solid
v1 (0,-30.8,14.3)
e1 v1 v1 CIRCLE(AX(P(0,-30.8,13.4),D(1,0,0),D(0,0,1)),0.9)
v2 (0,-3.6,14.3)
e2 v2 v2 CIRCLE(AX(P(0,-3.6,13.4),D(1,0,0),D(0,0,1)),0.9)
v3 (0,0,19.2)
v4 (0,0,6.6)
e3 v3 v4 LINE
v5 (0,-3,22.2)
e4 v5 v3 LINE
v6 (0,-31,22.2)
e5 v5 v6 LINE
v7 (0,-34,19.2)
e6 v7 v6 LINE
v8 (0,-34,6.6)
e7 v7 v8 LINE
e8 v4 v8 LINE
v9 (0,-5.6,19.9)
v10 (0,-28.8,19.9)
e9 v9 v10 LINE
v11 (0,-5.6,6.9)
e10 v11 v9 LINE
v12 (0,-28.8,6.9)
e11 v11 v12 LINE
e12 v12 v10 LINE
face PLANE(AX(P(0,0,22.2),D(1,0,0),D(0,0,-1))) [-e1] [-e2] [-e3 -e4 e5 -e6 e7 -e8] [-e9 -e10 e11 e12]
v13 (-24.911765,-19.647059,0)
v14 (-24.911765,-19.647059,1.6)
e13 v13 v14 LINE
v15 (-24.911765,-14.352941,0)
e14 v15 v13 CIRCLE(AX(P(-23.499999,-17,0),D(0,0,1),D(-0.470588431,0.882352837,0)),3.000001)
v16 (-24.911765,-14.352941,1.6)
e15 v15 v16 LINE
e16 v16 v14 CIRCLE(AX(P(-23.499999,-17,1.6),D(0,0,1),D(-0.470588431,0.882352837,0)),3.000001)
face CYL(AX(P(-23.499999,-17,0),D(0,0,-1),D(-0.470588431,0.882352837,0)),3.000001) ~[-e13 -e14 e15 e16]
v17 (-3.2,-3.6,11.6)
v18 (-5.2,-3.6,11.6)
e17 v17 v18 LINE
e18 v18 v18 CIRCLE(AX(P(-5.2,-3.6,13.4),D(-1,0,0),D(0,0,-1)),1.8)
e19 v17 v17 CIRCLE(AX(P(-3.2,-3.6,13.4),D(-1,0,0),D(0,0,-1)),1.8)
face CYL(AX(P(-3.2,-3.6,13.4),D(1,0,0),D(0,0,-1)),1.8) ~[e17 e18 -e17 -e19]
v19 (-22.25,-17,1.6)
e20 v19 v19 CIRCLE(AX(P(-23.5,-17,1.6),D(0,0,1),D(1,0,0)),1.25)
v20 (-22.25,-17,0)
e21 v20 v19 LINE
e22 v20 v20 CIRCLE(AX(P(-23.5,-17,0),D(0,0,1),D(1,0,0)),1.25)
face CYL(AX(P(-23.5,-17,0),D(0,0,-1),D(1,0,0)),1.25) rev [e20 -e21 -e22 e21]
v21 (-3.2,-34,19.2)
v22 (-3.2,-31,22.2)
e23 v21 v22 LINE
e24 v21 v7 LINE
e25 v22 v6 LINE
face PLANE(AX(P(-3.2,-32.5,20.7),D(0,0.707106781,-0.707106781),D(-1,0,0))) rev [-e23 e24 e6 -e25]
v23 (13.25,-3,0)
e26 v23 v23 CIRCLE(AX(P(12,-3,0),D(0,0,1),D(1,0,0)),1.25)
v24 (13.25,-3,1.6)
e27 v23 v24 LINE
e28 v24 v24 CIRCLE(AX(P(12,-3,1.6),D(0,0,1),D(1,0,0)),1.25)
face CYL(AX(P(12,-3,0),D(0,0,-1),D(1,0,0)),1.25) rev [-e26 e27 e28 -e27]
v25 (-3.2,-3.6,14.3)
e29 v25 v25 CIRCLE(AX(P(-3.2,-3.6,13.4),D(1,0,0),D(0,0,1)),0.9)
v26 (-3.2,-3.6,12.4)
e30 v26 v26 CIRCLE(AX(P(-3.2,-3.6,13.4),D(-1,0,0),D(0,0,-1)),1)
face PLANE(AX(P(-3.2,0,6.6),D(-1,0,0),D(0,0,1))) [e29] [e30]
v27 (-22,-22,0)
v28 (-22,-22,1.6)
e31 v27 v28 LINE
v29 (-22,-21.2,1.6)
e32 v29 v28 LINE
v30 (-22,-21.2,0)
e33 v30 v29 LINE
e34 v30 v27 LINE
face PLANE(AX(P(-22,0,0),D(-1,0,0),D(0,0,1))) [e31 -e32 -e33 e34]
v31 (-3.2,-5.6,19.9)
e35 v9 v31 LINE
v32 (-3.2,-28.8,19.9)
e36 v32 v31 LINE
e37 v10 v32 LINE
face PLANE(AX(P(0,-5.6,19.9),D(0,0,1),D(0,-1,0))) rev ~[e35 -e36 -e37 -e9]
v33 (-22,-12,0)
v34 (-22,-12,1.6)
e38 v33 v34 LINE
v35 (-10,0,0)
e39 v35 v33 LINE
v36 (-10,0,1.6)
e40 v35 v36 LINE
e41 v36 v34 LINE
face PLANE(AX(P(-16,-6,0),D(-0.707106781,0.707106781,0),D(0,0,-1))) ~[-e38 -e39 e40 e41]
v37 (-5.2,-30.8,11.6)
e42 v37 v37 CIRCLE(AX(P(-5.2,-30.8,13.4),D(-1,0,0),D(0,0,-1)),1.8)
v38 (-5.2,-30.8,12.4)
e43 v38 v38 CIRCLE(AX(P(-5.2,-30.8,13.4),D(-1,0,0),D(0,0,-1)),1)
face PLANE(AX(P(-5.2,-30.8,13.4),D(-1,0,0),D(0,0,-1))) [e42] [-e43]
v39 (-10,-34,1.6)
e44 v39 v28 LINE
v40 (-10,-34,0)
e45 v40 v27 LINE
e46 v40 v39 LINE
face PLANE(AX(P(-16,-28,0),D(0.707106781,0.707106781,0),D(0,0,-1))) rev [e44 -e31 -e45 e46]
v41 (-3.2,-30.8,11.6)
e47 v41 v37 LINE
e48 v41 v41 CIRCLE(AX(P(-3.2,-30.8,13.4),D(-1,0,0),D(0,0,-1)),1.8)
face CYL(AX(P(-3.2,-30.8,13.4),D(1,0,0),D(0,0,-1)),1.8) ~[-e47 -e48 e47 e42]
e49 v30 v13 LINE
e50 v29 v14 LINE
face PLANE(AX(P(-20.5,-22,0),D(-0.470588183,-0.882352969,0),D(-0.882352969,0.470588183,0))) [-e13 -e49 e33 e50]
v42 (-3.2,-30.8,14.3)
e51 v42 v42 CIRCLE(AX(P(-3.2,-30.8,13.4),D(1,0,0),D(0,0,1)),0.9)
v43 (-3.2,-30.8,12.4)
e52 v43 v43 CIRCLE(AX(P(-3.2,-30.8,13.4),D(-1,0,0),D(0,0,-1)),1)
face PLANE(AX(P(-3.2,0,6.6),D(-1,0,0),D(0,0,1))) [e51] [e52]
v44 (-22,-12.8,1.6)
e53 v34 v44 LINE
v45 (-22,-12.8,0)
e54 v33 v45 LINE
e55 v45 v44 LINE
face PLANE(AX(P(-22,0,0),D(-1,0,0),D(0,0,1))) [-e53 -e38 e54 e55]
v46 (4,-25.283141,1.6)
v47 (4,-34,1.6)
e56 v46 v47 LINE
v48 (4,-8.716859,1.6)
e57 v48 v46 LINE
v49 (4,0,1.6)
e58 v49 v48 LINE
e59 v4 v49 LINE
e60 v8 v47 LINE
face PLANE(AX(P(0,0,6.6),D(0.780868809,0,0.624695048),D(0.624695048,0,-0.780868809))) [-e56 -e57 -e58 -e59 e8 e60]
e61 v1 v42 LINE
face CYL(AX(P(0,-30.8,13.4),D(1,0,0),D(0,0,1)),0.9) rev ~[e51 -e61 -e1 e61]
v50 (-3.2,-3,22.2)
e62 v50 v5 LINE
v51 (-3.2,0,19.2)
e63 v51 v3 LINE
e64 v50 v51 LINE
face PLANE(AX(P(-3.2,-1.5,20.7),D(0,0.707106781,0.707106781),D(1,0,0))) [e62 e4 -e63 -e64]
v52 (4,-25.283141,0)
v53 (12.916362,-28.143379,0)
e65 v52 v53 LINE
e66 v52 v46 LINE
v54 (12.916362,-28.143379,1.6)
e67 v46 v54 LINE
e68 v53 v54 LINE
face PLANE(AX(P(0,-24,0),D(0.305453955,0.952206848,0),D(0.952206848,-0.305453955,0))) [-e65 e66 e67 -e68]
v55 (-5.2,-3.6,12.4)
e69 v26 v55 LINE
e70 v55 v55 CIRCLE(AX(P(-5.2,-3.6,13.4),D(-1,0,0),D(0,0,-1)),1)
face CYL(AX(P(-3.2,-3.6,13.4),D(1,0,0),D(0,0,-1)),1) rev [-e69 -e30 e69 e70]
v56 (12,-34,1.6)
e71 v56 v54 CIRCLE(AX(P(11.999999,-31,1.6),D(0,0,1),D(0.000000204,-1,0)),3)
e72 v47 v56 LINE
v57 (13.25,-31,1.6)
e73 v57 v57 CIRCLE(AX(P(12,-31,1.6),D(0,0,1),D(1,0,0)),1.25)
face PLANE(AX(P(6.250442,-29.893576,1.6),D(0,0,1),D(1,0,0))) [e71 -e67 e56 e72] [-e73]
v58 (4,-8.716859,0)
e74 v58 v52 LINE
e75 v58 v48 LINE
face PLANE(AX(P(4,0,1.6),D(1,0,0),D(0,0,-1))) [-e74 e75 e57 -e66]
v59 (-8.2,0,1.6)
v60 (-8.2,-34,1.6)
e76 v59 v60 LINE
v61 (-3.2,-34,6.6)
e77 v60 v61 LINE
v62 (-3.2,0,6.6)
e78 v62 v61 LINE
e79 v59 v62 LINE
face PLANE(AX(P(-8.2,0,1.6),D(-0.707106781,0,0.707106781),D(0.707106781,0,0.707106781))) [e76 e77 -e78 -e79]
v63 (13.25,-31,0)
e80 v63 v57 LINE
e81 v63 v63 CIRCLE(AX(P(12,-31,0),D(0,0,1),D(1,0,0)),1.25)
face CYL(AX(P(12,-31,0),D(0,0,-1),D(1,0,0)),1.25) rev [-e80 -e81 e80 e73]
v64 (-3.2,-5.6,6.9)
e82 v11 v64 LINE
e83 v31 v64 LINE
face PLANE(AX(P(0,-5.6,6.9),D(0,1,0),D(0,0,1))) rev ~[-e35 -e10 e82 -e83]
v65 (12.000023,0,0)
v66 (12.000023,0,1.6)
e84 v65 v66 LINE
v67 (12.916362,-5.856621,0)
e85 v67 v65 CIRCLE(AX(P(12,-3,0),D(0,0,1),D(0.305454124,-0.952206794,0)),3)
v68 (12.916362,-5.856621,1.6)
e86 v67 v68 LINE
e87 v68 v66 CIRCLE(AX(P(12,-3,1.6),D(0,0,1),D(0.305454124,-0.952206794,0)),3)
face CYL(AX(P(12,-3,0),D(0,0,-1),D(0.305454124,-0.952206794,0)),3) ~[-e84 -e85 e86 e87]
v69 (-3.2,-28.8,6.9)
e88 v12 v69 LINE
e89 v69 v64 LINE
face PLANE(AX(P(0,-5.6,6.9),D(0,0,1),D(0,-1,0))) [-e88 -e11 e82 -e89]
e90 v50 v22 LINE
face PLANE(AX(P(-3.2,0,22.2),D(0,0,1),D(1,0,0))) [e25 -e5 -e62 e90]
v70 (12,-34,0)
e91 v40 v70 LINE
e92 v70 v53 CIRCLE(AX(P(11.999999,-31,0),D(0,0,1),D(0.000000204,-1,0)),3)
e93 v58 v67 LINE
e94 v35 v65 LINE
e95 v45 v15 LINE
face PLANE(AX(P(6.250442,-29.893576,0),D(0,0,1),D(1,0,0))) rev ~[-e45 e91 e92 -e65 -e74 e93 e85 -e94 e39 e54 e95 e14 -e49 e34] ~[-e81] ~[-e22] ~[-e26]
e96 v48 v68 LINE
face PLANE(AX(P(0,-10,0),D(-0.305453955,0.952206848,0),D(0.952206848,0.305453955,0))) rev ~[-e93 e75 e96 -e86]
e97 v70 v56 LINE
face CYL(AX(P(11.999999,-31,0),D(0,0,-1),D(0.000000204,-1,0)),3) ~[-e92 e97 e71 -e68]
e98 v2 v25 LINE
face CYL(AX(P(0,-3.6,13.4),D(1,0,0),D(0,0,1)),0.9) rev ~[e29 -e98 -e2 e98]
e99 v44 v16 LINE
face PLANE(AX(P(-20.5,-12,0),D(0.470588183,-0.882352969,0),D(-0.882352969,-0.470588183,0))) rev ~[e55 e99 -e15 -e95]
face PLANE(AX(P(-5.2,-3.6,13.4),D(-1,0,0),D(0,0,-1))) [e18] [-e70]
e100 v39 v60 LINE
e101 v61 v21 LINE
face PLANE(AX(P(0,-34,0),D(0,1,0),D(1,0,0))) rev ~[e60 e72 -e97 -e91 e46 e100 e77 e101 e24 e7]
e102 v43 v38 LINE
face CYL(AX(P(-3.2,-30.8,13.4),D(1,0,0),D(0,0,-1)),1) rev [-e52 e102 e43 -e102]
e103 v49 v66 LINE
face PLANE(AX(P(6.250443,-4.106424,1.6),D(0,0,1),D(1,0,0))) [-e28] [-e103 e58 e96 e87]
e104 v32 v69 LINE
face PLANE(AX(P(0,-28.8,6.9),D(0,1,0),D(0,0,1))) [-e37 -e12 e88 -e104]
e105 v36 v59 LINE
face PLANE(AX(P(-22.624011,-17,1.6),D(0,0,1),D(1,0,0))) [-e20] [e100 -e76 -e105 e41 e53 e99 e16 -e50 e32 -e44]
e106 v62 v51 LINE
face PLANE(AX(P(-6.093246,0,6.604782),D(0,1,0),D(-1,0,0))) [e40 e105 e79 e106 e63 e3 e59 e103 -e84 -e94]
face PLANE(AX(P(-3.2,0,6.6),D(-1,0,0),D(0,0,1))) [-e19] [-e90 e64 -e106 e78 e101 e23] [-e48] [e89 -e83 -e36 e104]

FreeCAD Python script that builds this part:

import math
import FreeCAD as App
import Part
import Sketcher
from FreeCAD import Vector
Q = App.Units.Quantity


def edges_at(feature, points):
    """Names of the edges that pass closest to the given points."""
    edges = feature.Shape.Edges
    near = lambda p: min(range(len(edges)), key=lambda i: edges[i].distToShape(Part.Vertex(*p))[0])
    return sorted({f"Edge{near(p) + 1}" for p in points})


def add_polygon(sketch, points):
    """Adds a closed chain of lines whose ends are joined by coincident constraints."""
    first, n = sketch.GeometryCount, len(points)
    for a, b in zip(points, points[1:] + points[:1]):
        sketch.addGeometry(Part.LineSegment(App.Vector(*a, 0), App.Vector(*b, 0)), False)
    for i in range(n):
        sketch.addConstraint(Sketcher.Constraint("Coincident", first + i, 2, first + (i + 1) % n, 1))

doc = App.newDocument("Part")
body = doc.addObject("PartDesign::Body", "Body")

sketch1 = doc.addObject("Sketcher::SketchObject", "Sketch")
body.addObject(sketch1)
sketch1.AttachmentSupport = (doc.XZ_Plane, [""])
sketch1.MapMode = "FlatFace"
add_polygon(sketch1, [(-8.2, 1.6), (-22, 1.6), (-22, 0), (4, 0), (4, 1.6), (0, 6.6), (0, 22.2), (-3.2, 22.2), (-3.2, 6.6)])
sketch1.addConstraint([
    Sketcher.Constraint("Horizontal", 0),
    Sketcher.Constraint("Vertical", 1),
    Sketcher.Constraint("Horizontal", 2),
    Sketcher.Constraint("Vertical", 3),
    Sketcher.Constraint("Vertical", 5),
    Sketcher.Constraint("Horizontal", 6),
    Sketcher.Constraint("Vertical", 7),
    Sketcher.Constraint("PointOnObject", 1, 2, -1),
    Sketcher.Constraint("PointOnObject", 4, 2, -2),
    Sketcher.Constraint("Horizontal", 0, 2, 3, 2),
    Sketcher.Constraint("Horizontal", 4, 2, 7, 2),
    Sketcher.Constraint("DistanceX", 2, 1, 2, 2, Q("26 mm")),
    Sketcher.Constraint("Angle", 8, Q("-135 deg")),
    Sketcher.Constraint("DistanceX", 0, 2, 0, 1, Q("13.8 mm")),
    Sketcher.Constraint("DistanceX", 6, 2, 6, 1, Q("3.2 mm")),
    Sketcher.Constraint("DistanceY", 1, 2, 1, 1, Q("1.6 mm")),
    Sketcher.Constraint("DistanceY", 5, 1, 5, 2, Q("15.6 mm")),
    Sketcher.Constraint("DistanceX", 0, 2, -1, 1, Q("22 mm")),
])
pad1 = doc.addObject("PartDesign::Pad", "Pad")
body.addObject(pad1)
pad1.Profile = sketch1
pad1.Length = 34

sketch2 = doc.addObject("Sketcher::SketchObject", "Sketch001")
body.addObject(sketch2)
sketch2.AttachmentSupport = (doc.YZ_Plane, [""])
sketch2.MapMode = "FlatFace"
sketch2.addGeometry([
    Part.Circle(Vector(-30.8, 13.4, 0), Vector(0, 0, 1), 0.9),
    Part.Circle(Vector(-3.6, 13.4, 0), Vector(0, 0, 1), 0.9),
], False)
sketch2.addConstraint([
    Sketcher.Constraint("Equal", 0, 1),
    Sketcher.Constraint("Horizontal", 0, 3, 1, 3),
    Sketcher.Constraint("Diameter", 0, Q("1.8 mm")),
    Sketcher.Constraint("DistanceX", 0, 3, -1, 1, Q("30.8 mm")),
    Sketcher.Constraint("DistanceY", -1, 1, 0, 3, Q("13.4 mm")),
    Sketcher.Constraint("DistanceX", 1, 3, -1, 1, Q("3.6 mm")),
])
pocket1 = doc.addObject("PartDesign::Pocket", "Pocket")
body.addObject(pocket1)
pocket1.Profile = sketch2
pocket1.Type = "ThroughAll"

sketch3 = doc.addObject("Sketcher::SketchObject", "Sketch002")
body.addObject(sketch3)
sketch3.AttachmentSupport = (doc.YZ_Plane, [""])
sketch3.MapMode = "FlatFace"
add_polygon(sketch3, [(-29, 7), (-6, 7), (-6, 20), (-29, 20)])
sketch3.addConstraint([
    Sketcher.Constraint("Horizontal", 0),
    Sketcher.Constraint("Vertical", 1),
    Sketcher.Constraint("Horizontal", 2),
    Sketcher.Constraint("Vertical", 3),
    Sketcher.Constraint("DistanceY", 1, 1, 1, 2, Q("13 mm")),
    Sketcher.Constraint("DistanceX", 0, 1, 0, 2, Q("23.2 mm")),
    Sketcher.Constraint("DistanceX", 0, 2, -1, 1, Q("5.6 mm")),
    Sketcher.Constraint("DistanceY", -1, 1, 0, 2, Q("6.9 mm")),
])
pocket2 = doc.addObject("PartDesign::Pocket", "Pocket001")
body.addObject(pocket2)
pocket2.Profile = sketch3
pocket2.Type = "ThroughAll"

sketch4 = doc.addObject("Sketcher::SketchObject", "Sketch003")
body.addObject(sketch4)
sketch4.AttachmentSupport = (doc.XY_Plane, [""])
sketch4.MapMode = "FlatFace"
sketch4.addGeometry([
    Part.ArcOfCircle(Part.Circle(Vector(-23.5, -17, 0), Vector(0, 0, 1), 3), math.radians(118), math.radians(242)),
    Part.LineSegment(Vector(-24.9, -19.6, 0), Vector(-20.5, -22, 0)),
    Part.LineSegment(Vector(-20.5, -22, 0), Vector(-20.5, -12, 0)),
    Part.LineSegment(Vector(-20.5, -12, 0), Vector(-24.9, -14.4, 0)),
    Part.Circle(Vector(-23.5, -17, 0), Vector(0, 0, 1), 1.2),
], False)
sketch4.addConstraint([
    Sketcher.Constraint("Tangent", 0, 2, 1, 1),
    Sketcher.Constraint("Coincident", 1, 2, 2, 1),
    Sketcher.Constraint("Coincident", 2, 2, 3, 1),
    Sketcher.Constraint("Tangent", 3, 2, 0, 1),
    Sketcher.Constraint("Vertical", 2),
    Sketcher.Constraint("Coincident", 4, 3, 0, 3),
    Sketcher.Constraint("Vertical", 0, 2, 3, 2),
    Sketcher.Constraint("Radius", 0, Q("3.000001 mm")),
    Sketcher.Constraint("Diameter", 4, Q("2.5 mm")),
    Sketcher.Constraint("DistanceY", 2, 1, 2, 2, Q("10 mm")),
    Sketcher.Constraint("Distance", 1, Q("5 mm")),
    Sketcher.Constraint("DistanceY", 0, 3, -1, 1, Q("17 mm")),
    Sketcher.Constraint("DistanceX", 0, 3, -1, 1, Q("23.499999 mm")),
])
pad2 = doc.addObject("PartDesign::Pad", "Pad001")
body.addObject(pad2)
pad2.Profile = sketch4
pad2.Length = 1.6

sketch5 = doc.addObject("Sketcher::SketchObject", "Sketch004")
body.addObject(sketch5)
sketch5.AttachmentSupport = (doc.XY_Plane, [""])
sketch5.MapMode = "FlatFace"
sketch5.addGeometry([
    Part.ArcOfCircle(Part.Circle(Vector(12, -31, 0), Vector(0, 0, 1), 3), math.radians(-90), math.radians(72)),
    Part.LineSegment(Vector(12.9, -28.1, 0), Vector(0, -24, 0)),
    Part.LineSegment(Vector(0, -24, 0), Vector(0, -34, 0)),
    Part.LineSegment(Vector(0, -34, 0), Vector(12, -34, 0)),
    Part.Circle(Vector(12, -31, 0), Vector(0, 0, 1), 1.2),
    Part.ArcOfCircle(Part.Circle(Vector(12, -3, 0), Vector(0, 0, 1), 3), math.radians(-72), math.radians(90)),
    Part.LineSegment(Vector(12, 0, 0), Vector(0, 0, 0)),
    Part.LineSegment(Vector(0, 0, 0), Vector(0, -10, 0)),
    Part.LineSegment(Vector(0, -10, 0), Vector(12.9, -5.9, 0)),
    Part.Circle(Vector(12, -3, 0), Vector(0, 0, 1), 1.2),
], False)
sketch5.addConstraint([
    Sketcher.Constraint("Tangent", 0, 2, 1, 1),
    Sketcher.Constraint("Coincident", 1, 2, 2, 1),
    Sketcher.Constraint("Coincident", 2, 2, 3, 1),
    Sketcher.Constraint("Tangent", 3, 2, 0, 1),
    Sketcher.Constraint("Coincident", 5, 2, 6, 1),
    Sketcher.Constraint("Coincident", 6, 2, 7, 1),
    Sketcher.Constraint("Coincident", 7, 2, 8, 1),
    Sketcher.Constraint("Tangent", 8, 2, 5, 1),
    Sketcher.Constraint("Vertical", 2),
    Sketcher.Constraint("Horizontal", 3),
    Sketcher.Constraint("Horizontal", 6),
    Sketcher.Constraint("Vertical", 7),
    Sketcher.Constraint("Coincident", 6, 2, -1, 1),
    Sketcher.Constraint("Coincident", 4, 3, 0, 3),
    Sketcher.Constraint("Coincident", 9, 3, 5, 3),
    Sketcher.Constraint("Equal", 0, 5),
    Sketcher.Constraint("Equal", 4, 9),
    Sketcher.Constraint("PointOnObject", 1, 2, -2),
    Sketcher.Constraint("Vertical", 4, 3, 5, 3),
    Sketcher.Constraint("Vertical", 0, 2, 8, 2),
    Sketcher.Constraint("Radius", 0, Q("3 mm")),
    Sketcher.Constraint("Diameter", 4, Q("2.5 mm")),
    Sketcher.Constraint("DistanceX", 3, 1, 3, 2, Q("12 mm")),
    Sketcher.Constraint("DistanceY", 2, 2, 2, 1, Q("10 mm")),
    Sketcher.Constraint("DistanceY", 0, 3, -1, 1, Q("31 mm")),
    Sketcher.Constraint("DistanceX", 6, 2, 6, 1, Q("12.000023 mm")),
])
pad3 = doc.addObject("PartDesign::Pad", "Pad002")
body.addObject(pad3)
pad3.Profile = sketch5
pad3.Length = 1.6

sketch6 = doc.addObject("Sketcher::SketchObject", "Sketch005")
body.addObject(sketch6)
sketch6.AttachmentSupport = (doc.YZ_Plane, [""])
sketch6.MapMode = "FlatFace"
sketch6.AttachmentOffset = App.Placement(Vector(0, 0, -3.2), App.Rotation())
sketch6.addGeometry([
    Part.Circle(Vector(-30.8, 13.4, 0), Vector(0, 0, 1), 1.8),
    Part.Circle(Vector(-30.8, 13.4, 0), Vector(0, 0, 1), 1),
    Part.Circle(Vector(-3.6, 13.4, 0), Vector(0, 0, 1), 1.8),
    Part.Circle(Vector(-3.6, 13.4, 0), Vector(0, 0, 1), 1),
], False)
sketch6.addConstraint([
    Sketcher.Constraint("Coincident", 1, 3, 0, 3),
    Sketcher.Constraint("Coincident", 3, 3, 2, 3),
    Sketcher.Constraint("Equal", 0, 2),
    Sketcher.Constraint("Equal", 1, 3),
    Sketcher.Constraint("Horizontal", 1, 3, 2, 3),
    Sketcher.Constraint("Diameter", 1, Q("2 mm")),
    Sketcher.Constraint("Diameter", 0, Q("3.6 mm")),
    Sketcher.Constraint("DistanceX", 0, 3, -1, 1, Q("30.8 mm")),
    Sketcher.Constraint("DistanceY", -1, 1, 0, 3, Q("13.4 mm")),
    Sketcher.Constraint("DistanceX", 2, 3, -1, 1, Q("3.6 mm")),
])
pad4 = doc.addObject("PartDesign::Pad", "Pad003")
body.addObject(pad4)
pad4.Profile = sketch6
pad4.Length = 2
pad4.Reversed = True
doc.recompute()

chamfer = doc.addObject("PartDesign::Chamfer", "Chamfer")
body.addObject(chamfer)
chamfer.Base = (pad4, edges_at(pad4, [(-1.6, -34, 22.2), (-1.6, 0, 22.2)]))
chamfer.Size = 3
doc.recompute()

chamfer2 = doc.addObject("PartDesign::Chamfer", "Chamfer001")
body.addObject(chamfer2)
chamfer2.Base = (chamfer, edges_at(chamfer, [(-22, -34, 0.8), (-22, 0, 0.8)]))
chamfer2.Size = 12

doc.recompute()
